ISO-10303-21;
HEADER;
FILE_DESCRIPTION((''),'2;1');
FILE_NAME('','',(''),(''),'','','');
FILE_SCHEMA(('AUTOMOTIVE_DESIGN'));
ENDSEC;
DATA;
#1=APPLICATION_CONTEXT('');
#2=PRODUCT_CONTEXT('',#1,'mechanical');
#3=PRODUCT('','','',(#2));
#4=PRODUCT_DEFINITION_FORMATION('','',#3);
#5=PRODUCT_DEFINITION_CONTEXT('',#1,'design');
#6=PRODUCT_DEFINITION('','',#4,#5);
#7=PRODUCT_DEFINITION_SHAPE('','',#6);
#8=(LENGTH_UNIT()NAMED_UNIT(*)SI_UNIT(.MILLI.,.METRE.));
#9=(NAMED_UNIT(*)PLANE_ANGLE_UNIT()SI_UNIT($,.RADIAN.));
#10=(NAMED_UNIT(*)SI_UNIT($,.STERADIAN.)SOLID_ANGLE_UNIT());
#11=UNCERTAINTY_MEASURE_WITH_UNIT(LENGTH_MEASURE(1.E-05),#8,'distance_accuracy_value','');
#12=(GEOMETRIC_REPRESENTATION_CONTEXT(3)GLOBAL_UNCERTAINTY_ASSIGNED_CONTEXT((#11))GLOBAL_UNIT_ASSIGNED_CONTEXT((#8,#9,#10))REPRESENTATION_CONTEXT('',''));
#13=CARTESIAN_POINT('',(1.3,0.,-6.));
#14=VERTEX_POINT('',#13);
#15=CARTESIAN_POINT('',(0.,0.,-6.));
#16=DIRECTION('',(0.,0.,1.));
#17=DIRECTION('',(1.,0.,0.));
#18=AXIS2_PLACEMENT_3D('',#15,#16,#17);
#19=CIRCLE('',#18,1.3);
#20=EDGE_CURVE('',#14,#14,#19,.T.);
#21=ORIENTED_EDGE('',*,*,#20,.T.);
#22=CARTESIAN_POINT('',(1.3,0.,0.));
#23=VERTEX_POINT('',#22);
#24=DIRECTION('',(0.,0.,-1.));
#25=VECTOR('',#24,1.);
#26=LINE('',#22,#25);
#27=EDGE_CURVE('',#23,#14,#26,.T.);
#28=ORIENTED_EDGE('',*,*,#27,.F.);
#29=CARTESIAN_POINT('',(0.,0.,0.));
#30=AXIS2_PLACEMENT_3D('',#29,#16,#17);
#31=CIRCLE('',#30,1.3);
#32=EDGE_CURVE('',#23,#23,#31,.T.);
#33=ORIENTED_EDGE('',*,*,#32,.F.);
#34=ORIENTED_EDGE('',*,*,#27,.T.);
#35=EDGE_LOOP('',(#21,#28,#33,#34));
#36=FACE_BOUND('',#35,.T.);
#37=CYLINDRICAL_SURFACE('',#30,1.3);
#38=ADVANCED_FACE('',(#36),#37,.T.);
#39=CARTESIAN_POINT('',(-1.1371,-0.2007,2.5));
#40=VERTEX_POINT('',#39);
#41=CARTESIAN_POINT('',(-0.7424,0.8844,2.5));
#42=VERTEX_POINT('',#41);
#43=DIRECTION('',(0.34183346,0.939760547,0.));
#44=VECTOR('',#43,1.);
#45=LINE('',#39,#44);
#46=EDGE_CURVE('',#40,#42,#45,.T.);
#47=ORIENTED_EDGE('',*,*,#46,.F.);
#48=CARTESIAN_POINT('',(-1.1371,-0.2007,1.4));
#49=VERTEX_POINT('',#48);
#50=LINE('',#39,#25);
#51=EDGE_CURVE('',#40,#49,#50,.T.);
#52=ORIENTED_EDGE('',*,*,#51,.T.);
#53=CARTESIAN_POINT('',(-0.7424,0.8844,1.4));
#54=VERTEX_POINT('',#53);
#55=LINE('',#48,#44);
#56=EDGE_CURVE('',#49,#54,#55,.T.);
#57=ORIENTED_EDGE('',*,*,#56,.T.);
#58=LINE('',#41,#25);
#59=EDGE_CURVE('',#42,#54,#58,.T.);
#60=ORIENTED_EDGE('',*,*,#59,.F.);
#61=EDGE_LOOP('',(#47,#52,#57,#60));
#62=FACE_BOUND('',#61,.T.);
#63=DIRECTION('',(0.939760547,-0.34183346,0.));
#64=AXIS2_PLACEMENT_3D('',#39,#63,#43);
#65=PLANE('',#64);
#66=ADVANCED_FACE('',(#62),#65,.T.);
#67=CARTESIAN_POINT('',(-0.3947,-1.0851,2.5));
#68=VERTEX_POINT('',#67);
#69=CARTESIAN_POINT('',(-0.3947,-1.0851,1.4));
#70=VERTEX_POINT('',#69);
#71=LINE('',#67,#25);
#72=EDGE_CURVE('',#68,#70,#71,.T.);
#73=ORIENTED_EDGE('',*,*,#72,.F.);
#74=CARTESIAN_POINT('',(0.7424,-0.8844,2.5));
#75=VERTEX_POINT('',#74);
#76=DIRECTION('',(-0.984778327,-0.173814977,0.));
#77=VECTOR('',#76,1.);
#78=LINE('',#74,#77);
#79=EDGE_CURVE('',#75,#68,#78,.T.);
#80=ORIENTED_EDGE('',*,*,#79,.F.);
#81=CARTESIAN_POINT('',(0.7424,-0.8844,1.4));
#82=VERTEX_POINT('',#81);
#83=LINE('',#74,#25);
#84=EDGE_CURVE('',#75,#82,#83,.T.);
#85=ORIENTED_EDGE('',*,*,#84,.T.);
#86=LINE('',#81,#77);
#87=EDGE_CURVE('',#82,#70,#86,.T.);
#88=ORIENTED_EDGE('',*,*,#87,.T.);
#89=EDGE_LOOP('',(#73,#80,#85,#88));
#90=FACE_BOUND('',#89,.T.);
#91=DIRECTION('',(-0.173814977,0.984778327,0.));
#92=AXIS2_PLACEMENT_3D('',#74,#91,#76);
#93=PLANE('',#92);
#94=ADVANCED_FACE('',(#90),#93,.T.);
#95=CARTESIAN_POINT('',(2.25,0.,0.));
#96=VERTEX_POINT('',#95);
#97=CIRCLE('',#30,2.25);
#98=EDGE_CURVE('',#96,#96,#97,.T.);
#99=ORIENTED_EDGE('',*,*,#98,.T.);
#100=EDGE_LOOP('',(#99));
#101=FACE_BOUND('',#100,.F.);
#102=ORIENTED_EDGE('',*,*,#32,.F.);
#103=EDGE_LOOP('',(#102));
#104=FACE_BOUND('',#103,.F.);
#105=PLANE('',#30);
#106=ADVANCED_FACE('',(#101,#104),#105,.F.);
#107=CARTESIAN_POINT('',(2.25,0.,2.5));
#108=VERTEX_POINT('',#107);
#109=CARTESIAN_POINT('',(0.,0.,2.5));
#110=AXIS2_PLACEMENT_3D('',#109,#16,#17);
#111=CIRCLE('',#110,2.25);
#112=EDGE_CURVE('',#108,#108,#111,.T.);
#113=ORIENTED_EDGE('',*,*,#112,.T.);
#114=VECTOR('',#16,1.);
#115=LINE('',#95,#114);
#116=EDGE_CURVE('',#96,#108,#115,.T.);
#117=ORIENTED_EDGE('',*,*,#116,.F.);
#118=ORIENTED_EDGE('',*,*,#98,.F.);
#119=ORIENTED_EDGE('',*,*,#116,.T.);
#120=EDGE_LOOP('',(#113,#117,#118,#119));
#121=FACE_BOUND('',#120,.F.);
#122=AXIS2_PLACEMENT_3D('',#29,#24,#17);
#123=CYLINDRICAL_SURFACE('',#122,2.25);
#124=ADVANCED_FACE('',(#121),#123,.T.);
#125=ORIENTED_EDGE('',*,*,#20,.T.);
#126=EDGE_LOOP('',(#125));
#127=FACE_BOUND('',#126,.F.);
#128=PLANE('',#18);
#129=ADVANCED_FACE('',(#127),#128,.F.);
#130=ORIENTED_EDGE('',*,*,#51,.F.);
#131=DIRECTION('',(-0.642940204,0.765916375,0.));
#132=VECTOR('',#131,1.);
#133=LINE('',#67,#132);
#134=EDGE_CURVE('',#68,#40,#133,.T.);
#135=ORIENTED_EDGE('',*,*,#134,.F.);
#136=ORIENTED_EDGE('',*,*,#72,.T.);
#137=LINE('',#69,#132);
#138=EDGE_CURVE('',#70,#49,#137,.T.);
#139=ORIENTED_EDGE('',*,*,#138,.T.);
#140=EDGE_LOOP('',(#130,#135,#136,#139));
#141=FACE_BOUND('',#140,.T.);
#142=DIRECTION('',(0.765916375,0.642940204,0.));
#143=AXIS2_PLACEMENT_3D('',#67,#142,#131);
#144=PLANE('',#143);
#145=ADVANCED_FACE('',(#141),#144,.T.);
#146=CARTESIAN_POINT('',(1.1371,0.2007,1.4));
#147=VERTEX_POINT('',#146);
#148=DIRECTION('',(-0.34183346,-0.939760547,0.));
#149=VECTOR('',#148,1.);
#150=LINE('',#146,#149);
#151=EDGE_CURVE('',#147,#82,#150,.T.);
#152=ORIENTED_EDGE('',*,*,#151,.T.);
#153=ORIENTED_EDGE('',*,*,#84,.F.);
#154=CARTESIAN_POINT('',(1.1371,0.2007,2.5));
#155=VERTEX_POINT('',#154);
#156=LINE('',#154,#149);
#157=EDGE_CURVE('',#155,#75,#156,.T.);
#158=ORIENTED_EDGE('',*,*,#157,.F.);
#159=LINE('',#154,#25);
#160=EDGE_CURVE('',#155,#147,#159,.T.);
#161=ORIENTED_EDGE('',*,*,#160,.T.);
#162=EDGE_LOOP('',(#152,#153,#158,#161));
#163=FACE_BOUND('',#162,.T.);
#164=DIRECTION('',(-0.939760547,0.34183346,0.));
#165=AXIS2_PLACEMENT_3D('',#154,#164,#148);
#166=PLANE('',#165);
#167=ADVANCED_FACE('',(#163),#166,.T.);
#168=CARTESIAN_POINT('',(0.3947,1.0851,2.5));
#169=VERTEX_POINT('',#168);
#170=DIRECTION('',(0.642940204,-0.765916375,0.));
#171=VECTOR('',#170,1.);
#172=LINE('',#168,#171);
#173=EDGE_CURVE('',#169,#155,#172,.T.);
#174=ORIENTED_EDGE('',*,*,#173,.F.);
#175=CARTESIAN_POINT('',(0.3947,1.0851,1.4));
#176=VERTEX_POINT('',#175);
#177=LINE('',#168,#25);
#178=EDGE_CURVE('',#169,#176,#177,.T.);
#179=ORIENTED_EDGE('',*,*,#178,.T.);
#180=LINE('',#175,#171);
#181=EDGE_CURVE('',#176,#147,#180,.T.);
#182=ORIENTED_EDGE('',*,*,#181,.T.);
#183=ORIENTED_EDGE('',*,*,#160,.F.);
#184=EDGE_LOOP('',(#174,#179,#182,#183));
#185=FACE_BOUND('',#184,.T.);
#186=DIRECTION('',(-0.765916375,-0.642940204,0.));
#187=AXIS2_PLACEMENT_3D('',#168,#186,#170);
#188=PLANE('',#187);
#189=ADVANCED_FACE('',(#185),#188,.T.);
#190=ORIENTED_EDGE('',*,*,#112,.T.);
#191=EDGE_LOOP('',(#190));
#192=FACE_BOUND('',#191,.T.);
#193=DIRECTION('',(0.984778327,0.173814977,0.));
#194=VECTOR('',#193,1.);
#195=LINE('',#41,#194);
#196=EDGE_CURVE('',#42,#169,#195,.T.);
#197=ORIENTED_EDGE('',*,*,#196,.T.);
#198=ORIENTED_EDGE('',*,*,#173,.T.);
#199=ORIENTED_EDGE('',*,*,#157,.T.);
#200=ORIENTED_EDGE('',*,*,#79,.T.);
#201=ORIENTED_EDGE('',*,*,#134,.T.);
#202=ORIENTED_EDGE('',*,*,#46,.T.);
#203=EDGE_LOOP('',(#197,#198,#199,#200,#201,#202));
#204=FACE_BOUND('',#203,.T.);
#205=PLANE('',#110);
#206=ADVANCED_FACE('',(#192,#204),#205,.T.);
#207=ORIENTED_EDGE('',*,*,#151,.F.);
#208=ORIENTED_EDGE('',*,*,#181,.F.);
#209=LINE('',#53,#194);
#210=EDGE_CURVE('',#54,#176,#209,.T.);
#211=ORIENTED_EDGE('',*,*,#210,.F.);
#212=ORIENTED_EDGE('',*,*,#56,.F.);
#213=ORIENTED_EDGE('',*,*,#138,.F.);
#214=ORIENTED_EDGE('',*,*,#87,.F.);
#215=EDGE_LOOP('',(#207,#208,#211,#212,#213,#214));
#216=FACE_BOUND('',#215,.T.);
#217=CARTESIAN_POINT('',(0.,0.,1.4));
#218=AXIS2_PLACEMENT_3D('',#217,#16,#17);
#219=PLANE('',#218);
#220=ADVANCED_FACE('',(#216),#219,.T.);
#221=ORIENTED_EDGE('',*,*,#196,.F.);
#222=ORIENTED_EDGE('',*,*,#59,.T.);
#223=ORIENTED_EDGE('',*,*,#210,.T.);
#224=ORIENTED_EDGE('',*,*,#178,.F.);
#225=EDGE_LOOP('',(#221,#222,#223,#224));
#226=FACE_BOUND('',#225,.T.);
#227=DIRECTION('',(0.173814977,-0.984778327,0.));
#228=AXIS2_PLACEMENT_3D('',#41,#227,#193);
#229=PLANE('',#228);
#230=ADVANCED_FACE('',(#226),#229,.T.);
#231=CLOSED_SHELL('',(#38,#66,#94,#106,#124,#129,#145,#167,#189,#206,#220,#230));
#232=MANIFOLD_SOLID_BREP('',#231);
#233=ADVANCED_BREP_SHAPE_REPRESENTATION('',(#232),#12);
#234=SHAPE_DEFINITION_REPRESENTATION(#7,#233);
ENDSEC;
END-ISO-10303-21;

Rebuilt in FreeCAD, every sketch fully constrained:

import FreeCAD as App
import Part
import Sketcher

V = App.Vector
Q = App.Units.Quantity

doc = App.newDocument("Part")
body = doc.addObject("PartDesign::Body", "Body")

# Sketch on XY plane
sketch1 = body.newObject("Sketcher::SketchObject", "Sketch")
sketch1.AttachmentSupport = (doc.getObject("XY_Plane"), [""])
sketch1.MapMode = "FlatFace"
sketch1.addGeometry(Part.Circle(V(0, 0, 0), V(0, 0, 1), 2.25), False)
sketch1.addConstraint([
    Sketcher.Constraint("Coincident", 0, 3, -1, 1),
    Sketcher.Constraint("Diameter", 0, Q("4.5 mm")),
])
pad1 = body.newObject("PartDesign::Pad", "Pad")
pad1.Profile = sketch1
pad1.Length = 2.5

# Sketch on XY plane
sketch2 = body.newObject("Sketcher::SketchObject", "Sketch001")
sketch2.AttachmentSupport = (doc.getObject("XY_Plane"), [""])
sketch2.MapMode = "FlatFace"
sketch2.AttachmentOffset = App.Placement(V(0, 0, 2.5), App.Rotation())
sketch2.addGeometry([
    Part.LineSegment(V(-1.1371, -0.2007, 0), V(-0.3947, -1.0851, 0)),  # 0
    Part.LineSegment(V(-0.3947, -1.0851, 0), V(0.7424, -0.8844, 0)),  # 1
    Part.LineSegment(V(0.7424, -0.8844, 0), V(1.1371, 0.2007, 0)),  # 2
    Part.LineSegment(V(1.1371, 0.2007, 0), V(0.3947, 1.0851, 0)),  # 3
    Part.LineSegment(V(0.3947, 1.0851, 0), V(-0.7424, 0.8844, 0)),  # 4
    Part.LineSegment(V(-0.7424, 0.8844, 0), V(-1.1371, -0.2007, 0)),  # 5
], False)
sketch2.addConstraint([
    Sketcher.Constraint("Coincident", 0, 2, 1, 1),
    Sketcher.Constraint("Coincident", 1, 2, 2, 1),
    Sketcher.Constraint("Coincident", 2, 2, 3, 1),
    Sketcher.Constraint("Coincident", 3, 2, 4, 1),
    Sketcher.Constraint("Coincident", 4, 2, 5, 1),
    Sketcher.Constraint("Coincident", 5, 2, 0, 1),
    Sketcher.Constraint("Symmetric", 0, 2, 3, 2, -1, 1),
    Sketcher.Constraint("Symmetric", 1, 2, 4, 2, -1, 1),
    Sketcher.Constraint("Symmetric", 2, 2, 5, 2, -1, 1),
    Sketcher.Constraint("Equal", 0, 1),
    Sketcher.Constraint("Equal", 1, 2),
    Sketcher.Constraint("Angle", 1, Q("10.0097 deg")),
    Sketcher.Constraint("DistanceY", 0, 2, -1, 1, Q("1.085 mm")),
    Sketcher.Constraint("DistanceX", -1, 1, 2, 2, Q("1.137 mm")),
    Sketcher.Constraint("DistanceX", 0, 2, 1, 2, Q("1.137 mm")),
])
pocket1 = body.newObject("PartDesign::Pocket", "Pocket")
pocket1.Profile = sketch2
pocket1.Length = 1.1

# Sketch on XY plane
sketch3 = body.newObject("Sketcher::SketchObject", "Sketch002")
sketch3.AttachmentSupport = (doc.getObject("XY_Plane"), [""])
sketch3.MapMode = "FlatFace"
sketch3.addGeometry(Part.Circle(V(0, 0, 0), V(0, 0, 1), 1.3), False)
sketch3.addConstraint([
    Sketcher.Constraint("Coincident", 0, 3, -1, 1),
    Sketcher.Constraint("Diameter", 0, Q("2.6 mm")),
])
pad2 = body.newObject("PartDesign::Pad", "Pad001")
pad2.Profile = sketch3
pad2.Length = 6
pad2.Reversed = True

doc.recompute()
